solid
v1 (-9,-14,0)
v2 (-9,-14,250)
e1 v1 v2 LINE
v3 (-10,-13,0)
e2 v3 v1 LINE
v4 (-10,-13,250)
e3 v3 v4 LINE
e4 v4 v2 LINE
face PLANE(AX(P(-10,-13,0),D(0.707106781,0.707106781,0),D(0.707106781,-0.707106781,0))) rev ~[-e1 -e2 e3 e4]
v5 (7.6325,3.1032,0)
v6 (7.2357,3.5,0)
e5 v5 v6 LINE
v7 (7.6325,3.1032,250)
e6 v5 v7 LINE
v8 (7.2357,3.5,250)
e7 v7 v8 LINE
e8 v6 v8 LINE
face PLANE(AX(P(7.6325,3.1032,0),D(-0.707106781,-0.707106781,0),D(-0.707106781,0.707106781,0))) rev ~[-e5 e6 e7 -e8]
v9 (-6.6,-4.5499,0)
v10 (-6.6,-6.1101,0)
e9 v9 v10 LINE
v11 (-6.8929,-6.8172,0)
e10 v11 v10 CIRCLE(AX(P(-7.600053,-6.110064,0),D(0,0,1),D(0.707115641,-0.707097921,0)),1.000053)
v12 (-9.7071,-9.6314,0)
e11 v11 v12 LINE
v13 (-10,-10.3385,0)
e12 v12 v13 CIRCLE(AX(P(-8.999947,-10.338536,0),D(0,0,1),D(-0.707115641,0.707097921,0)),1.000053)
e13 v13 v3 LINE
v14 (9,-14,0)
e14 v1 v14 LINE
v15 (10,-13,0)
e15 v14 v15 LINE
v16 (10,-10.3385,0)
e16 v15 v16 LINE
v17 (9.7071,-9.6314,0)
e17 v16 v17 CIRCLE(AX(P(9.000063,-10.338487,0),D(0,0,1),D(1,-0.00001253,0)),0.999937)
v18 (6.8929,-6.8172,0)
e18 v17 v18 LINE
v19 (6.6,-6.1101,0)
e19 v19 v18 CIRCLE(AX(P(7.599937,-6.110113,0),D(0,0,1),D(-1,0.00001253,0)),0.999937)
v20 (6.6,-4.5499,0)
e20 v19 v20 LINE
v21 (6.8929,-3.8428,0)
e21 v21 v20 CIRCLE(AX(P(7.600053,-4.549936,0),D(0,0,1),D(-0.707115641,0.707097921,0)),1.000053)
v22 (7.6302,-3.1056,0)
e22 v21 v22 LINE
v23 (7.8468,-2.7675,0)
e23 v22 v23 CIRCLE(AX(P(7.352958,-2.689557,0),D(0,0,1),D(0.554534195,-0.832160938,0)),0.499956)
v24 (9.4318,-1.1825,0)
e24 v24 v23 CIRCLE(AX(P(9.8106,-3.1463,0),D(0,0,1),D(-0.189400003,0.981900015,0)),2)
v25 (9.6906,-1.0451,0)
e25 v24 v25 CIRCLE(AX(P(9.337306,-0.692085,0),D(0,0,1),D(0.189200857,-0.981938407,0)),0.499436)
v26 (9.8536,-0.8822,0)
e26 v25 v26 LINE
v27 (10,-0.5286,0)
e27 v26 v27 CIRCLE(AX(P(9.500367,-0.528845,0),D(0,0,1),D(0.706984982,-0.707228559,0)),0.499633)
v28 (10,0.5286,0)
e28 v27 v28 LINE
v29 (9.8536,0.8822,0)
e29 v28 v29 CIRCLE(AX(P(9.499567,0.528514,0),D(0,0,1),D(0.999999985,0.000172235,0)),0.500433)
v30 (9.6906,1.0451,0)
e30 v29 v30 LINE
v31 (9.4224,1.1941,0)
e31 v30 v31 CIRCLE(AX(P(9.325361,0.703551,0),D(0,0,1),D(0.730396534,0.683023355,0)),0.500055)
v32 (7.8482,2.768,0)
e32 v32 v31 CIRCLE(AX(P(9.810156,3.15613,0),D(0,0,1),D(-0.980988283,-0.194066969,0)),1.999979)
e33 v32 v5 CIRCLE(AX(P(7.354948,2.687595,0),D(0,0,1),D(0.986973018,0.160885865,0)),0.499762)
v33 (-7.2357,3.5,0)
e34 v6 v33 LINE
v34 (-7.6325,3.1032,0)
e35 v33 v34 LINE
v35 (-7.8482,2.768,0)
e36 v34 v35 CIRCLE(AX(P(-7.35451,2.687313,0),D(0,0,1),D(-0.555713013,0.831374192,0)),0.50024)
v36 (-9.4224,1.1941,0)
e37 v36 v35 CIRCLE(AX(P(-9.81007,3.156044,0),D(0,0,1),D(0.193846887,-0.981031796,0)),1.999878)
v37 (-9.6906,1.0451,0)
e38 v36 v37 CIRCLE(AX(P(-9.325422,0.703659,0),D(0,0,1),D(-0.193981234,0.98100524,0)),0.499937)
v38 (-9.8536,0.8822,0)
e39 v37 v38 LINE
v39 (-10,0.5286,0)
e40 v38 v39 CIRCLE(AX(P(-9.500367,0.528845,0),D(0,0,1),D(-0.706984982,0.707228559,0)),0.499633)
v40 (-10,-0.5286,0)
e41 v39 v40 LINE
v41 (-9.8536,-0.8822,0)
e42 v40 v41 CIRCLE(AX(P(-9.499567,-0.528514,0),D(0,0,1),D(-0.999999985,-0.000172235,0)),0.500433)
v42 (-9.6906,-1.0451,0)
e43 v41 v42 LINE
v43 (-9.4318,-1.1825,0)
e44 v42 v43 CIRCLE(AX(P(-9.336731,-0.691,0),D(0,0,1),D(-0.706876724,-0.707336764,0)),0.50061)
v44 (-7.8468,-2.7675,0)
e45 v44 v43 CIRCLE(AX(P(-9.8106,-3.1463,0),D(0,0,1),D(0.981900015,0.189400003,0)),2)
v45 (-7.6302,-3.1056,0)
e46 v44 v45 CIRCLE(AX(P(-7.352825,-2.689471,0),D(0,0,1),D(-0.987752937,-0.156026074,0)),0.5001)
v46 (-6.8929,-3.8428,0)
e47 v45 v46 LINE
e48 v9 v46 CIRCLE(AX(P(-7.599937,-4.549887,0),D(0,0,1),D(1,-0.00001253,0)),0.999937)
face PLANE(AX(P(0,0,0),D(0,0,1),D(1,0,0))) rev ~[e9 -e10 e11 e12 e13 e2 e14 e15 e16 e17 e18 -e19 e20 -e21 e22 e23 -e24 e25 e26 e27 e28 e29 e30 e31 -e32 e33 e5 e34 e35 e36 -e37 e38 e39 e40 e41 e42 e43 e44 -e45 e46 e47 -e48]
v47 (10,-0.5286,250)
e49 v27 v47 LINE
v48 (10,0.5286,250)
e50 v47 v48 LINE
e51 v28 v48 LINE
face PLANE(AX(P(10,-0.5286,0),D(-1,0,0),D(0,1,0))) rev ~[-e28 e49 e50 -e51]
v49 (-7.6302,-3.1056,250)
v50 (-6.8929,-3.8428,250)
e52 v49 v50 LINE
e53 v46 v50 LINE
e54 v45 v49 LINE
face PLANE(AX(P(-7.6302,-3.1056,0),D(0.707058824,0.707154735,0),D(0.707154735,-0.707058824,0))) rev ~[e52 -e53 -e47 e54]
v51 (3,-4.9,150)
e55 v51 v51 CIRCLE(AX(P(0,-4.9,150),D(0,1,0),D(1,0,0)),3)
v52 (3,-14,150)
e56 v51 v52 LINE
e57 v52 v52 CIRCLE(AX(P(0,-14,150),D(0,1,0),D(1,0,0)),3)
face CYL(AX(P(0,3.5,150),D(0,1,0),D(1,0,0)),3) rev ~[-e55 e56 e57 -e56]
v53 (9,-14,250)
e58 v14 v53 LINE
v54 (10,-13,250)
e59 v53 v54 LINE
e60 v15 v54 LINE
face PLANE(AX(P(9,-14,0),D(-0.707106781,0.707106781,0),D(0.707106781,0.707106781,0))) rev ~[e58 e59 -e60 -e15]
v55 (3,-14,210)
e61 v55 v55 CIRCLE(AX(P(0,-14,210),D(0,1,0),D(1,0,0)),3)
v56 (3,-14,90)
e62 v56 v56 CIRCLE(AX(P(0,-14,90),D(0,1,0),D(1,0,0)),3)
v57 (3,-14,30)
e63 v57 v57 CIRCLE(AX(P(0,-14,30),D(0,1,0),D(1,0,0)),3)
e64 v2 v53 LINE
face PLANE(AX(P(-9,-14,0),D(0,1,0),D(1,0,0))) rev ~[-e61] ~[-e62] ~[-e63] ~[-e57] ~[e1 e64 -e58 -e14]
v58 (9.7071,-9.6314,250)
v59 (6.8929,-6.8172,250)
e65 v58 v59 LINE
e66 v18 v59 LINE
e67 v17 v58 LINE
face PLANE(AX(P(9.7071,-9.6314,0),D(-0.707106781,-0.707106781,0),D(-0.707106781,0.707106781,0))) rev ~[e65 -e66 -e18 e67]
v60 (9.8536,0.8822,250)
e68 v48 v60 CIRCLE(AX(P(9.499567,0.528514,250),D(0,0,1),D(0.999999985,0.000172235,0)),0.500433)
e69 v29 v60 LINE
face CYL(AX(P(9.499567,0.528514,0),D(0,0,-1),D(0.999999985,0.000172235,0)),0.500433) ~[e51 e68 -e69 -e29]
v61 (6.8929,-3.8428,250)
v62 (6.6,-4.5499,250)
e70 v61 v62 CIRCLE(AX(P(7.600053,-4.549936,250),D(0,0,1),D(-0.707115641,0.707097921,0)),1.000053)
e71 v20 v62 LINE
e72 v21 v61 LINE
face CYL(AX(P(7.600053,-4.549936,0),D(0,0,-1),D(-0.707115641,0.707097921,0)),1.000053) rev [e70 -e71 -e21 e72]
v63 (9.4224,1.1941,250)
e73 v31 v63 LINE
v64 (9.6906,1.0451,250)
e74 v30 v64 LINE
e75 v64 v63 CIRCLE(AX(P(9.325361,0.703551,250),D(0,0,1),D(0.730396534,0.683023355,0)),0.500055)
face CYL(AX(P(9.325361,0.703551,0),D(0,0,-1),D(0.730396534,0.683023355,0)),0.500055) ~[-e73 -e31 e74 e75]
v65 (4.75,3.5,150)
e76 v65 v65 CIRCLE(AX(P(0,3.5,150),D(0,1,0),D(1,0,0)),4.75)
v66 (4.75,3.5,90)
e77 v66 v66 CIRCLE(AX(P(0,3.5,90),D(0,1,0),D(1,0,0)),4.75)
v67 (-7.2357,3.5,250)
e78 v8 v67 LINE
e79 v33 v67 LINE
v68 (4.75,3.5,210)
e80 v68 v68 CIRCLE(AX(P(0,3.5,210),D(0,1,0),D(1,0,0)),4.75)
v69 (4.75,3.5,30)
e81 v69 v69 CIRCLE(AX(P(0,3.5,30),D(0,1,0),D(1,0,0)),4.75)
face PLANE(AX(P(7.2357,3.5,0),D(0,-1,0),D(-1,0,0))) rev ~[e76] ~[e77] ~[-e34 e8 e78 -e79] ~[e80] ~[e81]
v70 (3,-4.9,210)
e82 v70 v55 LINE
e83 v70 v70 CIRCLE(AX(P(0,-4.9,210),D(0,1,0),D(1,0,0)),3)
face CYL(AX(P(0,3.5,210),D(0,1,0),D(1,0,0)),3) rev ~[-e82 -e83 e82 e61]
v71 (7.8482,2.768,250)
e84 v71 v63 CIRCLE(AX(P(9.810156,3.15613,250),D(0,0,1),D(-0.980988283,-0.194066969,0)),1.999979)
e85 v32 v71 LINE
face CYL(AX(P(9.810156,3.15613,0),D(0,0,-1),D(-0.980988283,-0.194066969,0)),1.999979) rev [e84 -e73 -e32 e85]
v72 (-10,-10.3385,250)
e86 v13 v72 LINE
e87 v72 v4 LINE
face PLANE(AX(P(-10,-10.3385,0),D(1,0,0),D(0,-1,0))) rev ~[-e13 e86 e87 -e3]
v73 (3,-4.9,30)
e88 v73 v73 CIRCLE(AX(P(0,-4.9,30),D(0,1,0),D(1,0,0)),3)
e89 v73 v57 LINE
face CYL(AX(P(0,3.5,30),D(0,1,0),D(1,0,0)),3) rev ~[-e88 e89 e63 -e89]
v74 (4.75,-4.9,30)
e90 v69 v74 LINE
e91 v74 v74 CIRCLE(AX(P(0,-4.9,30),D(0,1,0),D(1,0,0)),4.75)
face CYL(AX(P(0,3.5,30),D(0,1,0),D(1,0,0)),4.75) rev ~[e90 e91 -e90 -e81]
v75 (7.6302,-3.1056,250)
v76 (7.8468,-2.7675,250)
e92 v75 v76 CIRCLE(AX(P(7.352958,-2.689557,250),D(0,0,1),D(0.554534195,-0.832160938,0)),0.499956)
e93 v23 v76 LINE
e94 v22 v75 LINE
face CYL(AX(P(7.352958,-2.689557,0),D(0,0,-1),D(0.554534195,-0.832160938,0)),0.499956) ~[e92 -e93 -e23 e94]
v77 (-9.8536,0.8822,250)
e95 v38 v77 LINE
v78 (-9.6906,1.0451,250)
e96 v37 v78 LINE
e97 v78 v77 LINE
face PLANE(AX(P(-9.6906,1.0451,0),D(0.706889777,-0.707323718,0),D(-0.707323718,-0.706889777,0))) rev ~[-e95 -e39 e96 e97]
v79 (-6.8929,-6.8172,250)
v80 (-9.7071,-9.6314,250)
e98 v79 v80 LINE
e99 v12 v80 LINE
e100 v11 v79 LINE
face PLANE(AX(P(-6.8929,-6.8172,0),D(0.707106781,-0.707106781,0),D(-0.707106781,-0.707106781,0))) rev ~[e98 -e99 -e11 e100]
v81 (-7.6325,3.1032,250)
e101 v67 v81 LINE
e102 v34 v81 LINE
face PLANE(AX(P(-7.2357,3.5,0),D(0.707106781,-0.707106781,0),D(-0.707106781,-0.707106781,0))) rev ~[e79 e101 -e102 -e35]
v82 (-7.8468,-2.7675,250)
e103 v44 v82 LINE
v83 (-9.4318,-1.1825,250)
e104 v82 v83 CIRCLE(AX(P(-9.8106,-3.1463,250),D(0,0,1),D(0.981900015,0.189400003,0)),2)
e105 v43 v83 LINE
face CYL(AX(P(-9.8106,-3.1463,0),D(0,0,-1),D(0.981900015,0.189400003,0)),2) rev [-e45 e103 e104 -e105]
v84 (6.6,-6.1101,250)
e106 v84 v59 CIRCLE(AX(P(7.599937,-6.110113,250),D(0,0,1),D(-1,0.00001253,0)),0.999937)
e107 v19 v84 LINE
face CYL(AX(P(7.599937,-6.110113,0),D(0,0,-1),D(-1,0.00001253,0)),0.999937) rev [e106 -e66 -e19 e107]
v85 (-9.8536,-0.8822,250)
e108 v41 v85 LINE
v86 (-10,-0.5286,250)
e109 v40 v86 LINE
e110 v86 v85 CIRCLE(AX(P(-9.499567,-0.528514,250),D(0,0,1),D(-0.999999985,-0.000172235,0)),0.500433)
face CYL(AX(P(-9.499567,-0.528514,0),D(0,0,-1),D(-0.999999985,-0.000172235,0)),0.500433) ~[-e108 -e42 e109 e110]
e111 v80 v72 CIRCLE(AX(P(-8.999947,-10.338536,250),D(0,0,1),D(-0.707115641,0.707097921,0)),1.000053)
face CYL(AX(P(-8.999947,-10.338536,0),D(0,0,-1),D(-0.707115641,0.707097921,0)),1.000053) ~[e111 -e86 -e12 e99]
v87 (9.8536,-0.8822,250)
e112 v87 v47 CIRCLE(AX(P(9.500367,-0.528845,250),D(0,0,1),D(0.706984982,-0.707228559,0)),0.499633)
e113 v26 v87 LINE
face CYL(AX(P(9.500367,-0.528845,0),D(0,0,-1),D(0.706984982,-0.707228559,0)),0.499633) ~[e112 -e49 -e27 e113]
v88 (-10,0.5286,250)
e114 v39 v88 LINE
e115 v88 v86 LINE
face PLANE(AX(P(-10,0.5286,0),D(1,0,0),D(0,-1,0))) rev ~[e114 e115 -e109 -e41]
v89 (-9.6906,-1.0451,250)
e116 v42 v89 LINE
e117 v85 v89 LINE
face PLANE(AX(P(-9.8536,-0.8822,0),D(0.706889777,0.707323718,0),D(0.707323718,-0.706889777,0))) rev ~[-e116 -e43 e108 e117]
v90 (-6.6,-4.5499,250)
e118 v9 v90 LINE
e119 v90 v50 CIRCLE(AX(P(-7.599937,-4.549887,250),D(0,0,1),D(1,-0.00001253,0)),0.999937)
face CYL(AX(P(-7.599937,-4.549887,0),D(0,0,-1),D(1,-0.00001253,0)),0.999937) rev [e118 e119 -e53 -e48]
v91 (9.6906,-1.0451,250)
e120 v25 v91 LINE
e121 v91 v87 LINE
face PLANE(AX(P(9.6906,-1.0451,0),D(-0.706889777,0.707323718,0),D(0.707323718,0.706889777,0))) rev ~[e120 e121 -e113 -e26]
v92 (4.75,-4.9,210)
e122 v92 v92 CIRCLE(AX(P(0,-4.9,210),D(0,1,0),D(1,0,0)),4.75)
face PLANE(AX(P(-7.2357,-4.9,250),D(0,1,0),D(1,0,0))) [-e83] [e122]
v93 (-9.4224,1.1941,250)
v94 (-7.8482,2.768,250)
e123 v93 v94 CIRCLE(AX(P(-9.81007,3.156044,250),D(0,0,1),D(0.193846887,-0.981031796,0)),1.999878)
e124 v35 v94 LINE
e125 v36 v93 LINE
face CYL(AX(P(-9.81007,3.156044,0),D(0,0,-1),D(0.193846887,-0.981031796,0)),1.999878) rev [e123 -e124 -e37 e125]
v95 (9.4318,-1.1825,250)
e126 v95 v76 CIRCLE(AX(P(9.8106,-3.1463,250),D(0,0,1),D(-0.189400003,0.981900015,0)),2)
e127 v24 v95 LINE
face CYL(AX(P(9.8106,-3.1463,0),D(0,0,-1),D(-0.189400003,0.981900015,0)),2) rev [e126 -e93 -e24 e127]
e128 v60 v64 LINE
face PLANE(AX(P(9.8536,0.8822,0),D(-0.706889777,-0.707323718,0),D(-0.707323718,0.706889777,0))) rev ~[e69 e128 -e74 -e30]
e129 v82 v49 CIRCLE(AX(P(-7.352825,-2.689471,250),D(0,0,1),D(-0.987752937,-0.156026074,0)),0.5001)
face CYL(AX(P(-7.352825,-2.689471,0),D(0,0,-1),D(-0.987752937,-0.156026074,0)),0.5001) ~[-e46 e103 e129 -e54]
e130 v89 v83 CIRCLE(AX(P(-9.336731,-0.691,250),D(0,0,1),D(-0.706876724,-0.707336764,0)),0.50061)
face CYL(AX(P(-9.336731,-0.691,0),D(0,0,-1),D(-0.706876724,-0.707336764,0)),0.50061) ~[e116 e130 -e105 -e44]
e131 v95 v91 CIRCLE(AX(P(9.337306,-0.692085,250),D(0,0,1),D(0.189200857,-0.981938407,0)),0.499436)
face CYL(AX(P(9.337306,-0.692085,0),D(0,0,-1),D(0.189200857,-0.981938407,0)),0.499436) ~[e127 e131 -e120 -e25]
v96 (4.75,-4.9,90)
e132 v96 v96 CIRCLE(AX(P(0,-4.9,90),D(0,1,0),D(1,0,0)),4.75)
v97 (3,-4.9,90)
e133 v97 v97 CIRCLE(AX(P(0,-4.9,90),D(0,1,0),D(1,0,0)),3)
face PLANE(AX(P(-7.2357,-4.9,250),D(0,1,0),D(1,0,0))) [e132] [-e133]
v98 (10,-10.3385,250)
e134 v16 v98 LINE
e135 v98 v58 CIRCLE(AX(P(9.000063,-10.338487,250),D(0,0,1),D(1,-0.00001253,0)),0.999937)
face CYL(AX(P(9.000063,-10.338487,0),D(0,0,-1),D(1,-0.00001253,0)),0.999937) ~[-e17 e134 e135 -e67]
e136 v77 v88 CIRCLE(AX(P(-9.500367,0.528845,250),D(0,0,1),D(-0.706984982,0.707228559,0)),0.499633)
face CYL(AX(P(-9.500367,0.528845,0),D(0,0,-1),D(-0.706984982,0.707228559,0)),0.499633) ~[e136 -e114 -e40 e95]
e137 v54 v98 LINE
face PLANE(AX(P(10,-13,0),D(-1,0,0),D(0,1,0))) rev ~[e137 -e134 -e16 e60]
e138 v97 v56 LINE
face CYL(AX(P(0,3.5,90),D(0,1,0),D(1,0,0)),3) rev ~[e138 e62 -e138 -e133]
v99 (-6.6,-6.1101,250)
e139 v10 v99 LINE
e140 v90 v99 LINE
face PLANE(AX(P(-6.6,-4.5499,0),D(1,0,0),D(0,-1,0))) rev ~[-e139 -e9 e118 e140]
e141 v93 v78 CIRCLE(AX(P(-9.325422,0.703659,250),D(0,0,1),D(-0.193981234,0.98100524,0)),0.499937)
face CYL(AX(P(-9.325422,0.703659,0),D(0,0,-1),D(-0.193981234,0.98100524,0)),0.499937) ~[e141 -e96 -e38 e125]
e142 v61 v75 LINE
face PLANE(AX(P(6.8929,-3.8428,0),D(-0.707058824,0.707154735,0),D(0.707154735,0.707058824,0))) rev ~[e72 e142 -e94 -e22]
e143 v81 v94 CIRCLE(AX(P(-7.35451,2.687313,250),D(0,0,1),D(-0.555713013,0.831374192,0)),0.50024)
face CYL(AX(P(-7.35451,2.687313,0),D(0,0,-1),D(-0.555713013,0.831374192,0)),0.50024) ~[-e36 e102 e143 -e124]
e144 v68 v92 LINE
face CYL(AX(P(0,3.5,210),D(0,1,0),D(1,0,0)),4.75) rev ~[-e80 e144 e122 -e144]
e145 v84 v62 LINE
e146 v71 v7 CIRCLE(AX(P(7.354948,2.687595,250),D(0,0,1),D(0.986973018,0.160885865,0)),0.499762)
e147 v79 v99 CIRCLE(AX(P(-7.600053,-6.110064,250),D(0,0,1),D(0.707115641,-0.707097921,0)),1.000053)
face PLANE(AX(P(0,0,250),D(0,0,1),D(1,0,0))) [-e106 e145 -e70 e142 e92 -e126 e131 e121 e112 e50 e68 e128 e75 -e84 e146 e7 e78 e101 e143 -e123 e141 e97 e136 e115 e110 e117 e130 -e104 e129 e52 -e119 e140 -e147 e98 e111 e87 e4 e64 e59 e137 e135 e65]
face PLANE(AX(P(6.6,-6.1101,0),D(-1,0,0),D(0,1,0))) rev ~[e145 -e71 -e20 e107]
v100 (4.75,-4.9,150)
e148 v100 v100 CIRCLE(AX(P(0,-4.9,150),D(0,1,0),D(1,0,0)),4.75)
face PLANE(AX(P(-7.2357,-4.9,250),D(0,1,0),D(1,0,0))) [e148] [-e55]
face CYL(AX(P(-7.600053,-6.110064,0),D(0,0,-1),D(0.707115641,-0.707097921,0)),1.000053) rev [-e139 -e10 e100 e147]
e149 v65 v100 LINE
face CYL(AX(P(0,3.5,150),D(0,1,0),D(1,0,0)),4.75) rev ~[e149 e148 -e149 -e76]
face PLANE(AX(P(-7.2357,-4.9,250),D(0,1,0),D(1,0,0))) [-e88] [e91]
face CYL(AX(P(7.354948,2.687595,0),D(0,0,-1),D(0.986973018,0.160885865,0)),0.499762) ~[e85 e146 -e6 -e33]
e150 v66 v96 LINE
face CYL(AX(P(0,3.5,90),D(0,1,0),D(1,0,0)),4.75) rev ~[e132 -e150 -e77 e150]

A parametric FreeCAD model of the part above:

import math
import FreeCAD as App
import Part
import Sketcher
Q = App.Units.Quantity

doc = App.newDocument("Part")
body = doc.addObject("PartDesign::Body", "Body")

# Sketch on XY plane
sketch1 = doc.addObject("Sketcher::SketchObject", "Sketch")
body.addObject(sketch1)
sketch1.AttachmentSupport = (doc.XY_Plane, [""])
sketch1.MapMode = "FlatFace"
sketch1.addGeometry(Part.LineSegment(App.Vector(-6.89, -6.82, 0), App.Vector(-9.71, -9.63, 0)), False)
sketch1.addGeometry(Part.ArcOfCircle(Part.Circle(App.Vector(-9, -10.34, 0), App.Vector(0, 0, 1), 1), math.radians(135), math.radians(180)), False)
sketch1.addGeometry(Part.LineSegment(App.Vector(-10, -10.34, 0), App.Vector(-10, -13, 0)), False)
sketch1.addGeometry(Part.LineSegment(App.Vector(-10, -13, 0), App.Vector(-9, -14, 0)), False)
sketch1.addGeometry(Part.LineSegment(App.Vector(-9, -14, 0), App.Vector(9, -14, 0)), False)
sketch1.addGeometry(Part.LineSegment(App.Vector(9, -14, 0), App.Vector(10, -13, 0)), False)
sketch1.addGeometry(Part.LineSegment(App.Vector(10, -13, 0), App.Vector(10, -10.34, 0)), False)
sketch1.addGeometry(Part.ArcOfCircle(Part.Circle(App.Vector(9, -10.34, 0), App.Vector(0, 0, 1), 1), math.radians(0), math.radians(45)), False)
sketch1.addGeometry(Part.LineSegment(App.Vector(9.71, -9.63, 0), App.Vector(6.89, -6.82, 0)), False)
sketch1.addGeometry(Part.ArcOfCircle(Part.Circle(App.Vector(7.6, -6.11, 0), App.Vector(0, 0, 1), 1), math.radians(180), math.radians(225)), False)
sketch1.addGeometry(Part.LineSegment(App.Vector(6.6, -6.11, 0), App.Vector(6.6, -4.55, 0)), False)
sketch1.addGeometry(Part.ArcOfCircle(Part.Circle(App.Vector(7.6, -4.55, 0), App.Vector(0, 0, 1), 1), math.radians(135), math.radians(180)), False)
sketch1.addGeometry(Part.LineSegment(App.Vector(6.89, -3.84, 0), App.Vector(7.63, -3.11, 0)), False)
sketch1.addGeometry(Part.ArcOfCircle(Part.Circle(App.Vector(7.35, -2.69, 0), App.Vector(0, 0, 1), 0.5), math.radians(-56), math.radians(-9)), False)
sketch1.addGeometry(Part.ArcOfCircle(Part.Circle(App.Vector(9.81, -3.15, 0), App.Vector(0, 0, 1), 2), math.radians(101), math.radians(169)), False)
sketch1.addGeometry(Part.ArcOfCircle(Part.Circle(App.Vector(9.34, -0.69, 0), App.Vector(0, 0, 1), 0.5), math.radians(-79), math.radians(-45)), False)
sketch1.addGeometry(Part.LineSegment(App.Vector(9.69, -1.05, 0), App.Vector(9.85, -0.88, 0)), False)
sketch1.addGeometry(Part.ArcOfCircle(Part.Circle(App.Vector(9.5, -0.53, 0), App.Vector(0, 0, 1), 0.5), math.radians(-45), math.radians(0)), False)
sketch1.addGeometry(Part.LineSegment(App.Vector(10, -0.53, 0), App.Vector(10, 0.53, 0)), False)
sketch1.addGeometry(Part.ArcOfCircle(Part.Circle(App.Vector(9.5, 0.53, 0), App.Vector(0, 0, 1), 0.5), math.radians(0), math.radians(45)), False)
sketch1.addGeometry(Part.LineSegment(App.Vector(9.85, 0.88, 0), App.Vector(9.69, 1.05, 0)), False)
sketch1.addGeometry(Part.ArcOfCircle(Part.Circle(App.Vector(9.33, 0.7, 0), App.Vector(0, 0, 1), 0.5), math.radians(43), math.radians(79)), False)
sketch1.addGeometry(Part.ArcOfCircle(Part.Circle(App.Vector(9.81, 3.16, 0), App.Vector(0, 0, 1), 2), math.radians(-169), math.radians(-101)), False)
sketch1.addGeometry(Part.ArcOfCircle(Part.Circle(App.Vector(7.35, 2.69, 0), App.Vector(0, 0, 1), 0.5), math.radians(9), math.radians(56)), False)
sketch1.addGeometry(Part.LineSegment(App.Vector(7.63, 3.1, 0), App.Vector(7.24, 3.5, 0)), False)
sketch1.addGeometry(Part.LineSegment(App.Vector(7.24, 3.5, 0), App.Vector(-7.24, 3.5, 0)), False)
sketch1.addGeometry(Part.LineSegment(App.Vector(-7.24, 3.5, 0), App.Vector(-7.63, 3.1, 0)), False)
sketch1.addGeometry(Part.ArcOfCircle(Part.Circle(App.Vector(-7.35, 2.69, 0), App.Vector(0, 0, 1), 0.5), math.radians(124), math.radians(171)), False)
sketch1.addGeometry(Part.ArcOfCircle(Part.Circle(App.Vector(-9.81, 3.16, 0), App.Vector(0, 0, 1), 2), math.radians(-79), math.radians(-11)), False)
sketch1.addGeometry(Part.ArcOfCircle(Part.Circle(App.Vector(-9.33, 0.7, 0), App.Vector(0, 0, 1), 0.5), math.radians(101), math.radians(137)), False)
sketch1.addGeometry(Part.LineSegment(App.Vector(-9.69, 1.05, 0), App.Vector(-9.85, 0.88, 0)), False)
sketch1.addGeometry(Part.ArcOfCircle(Part.Circle(App.Vector(-9.5, 0.53, 0), App.Vector(0, 0, 1), 0.5), math.radians(135), math.radians(180)), False)
sketch1.addGeometry(Part.LineSegment(App.Vector(-10, 0.53, 0), App.Vector(-10, -0.53, 0)), False)
sketch1.addGeometry(Part.ArcOfCircle(Part.Circle(App.Vector(-9.5, -0.53, 0), App.Vector(0, 0, 1), 0.5), math.radians(180), math.radians(225)), False)
sketch1.addGeometry(Part.LineSegment(App.Vector(-9.85, -0.88, 0), App.Vector(-9.69, -1.05, 0)), False)
sketch1.addGeometry(Part.ArcOfCircle(Part.Circle(App.Vector(-9.34, -0.69, 0), App.Vector(0, 0, 1), 0.5), math.radians(-135), math.radians(-101)), False)
sketch1.addGeometry(Part.ArcOfCircle(Part.Circle(App.Vector(-9.81, -3.15, 0), App.Vector(0, 0, 1), 2), math.radians(11), math.radians(79)), False)
sketch1.addGeometry(Part.ArcOfCircle(Part.Circle(App.Vector(-7.35, -2.69, 0), App.Vector(0, 0, 1), 0.5), math.radians(-171), math.radians(-124)), False)
sketch1.addGeometry(Part.LineSegment(App.Vector(-7.63, -3.11, 0), App.Vector(-6.89, -3.84, 0)), False)
sketch1.addGeometry(Part.ArcOfCircle(Part.Circle(App.Vector(-7.6, -4.55, 0), App.Vector(0, 0, 1), 1), math.radians(0), math.radians(45)), False)
sketch1.addGeometry(Part.LineSegment(App.Vector(-6.6, -4.55, 0), App.Vector(-6.6, -6.11, 0)), False)
sketch1.addGeometry(Part.ArcOfCircle(Part.Circle(App.Vector(-7.6, -6.11, 0), App.Vector(0, 0, 1), 1), math.radians(-45), math.radians(0)), False)
sketch1.addConstraint(Sketcher.Constraint("Tangent", 0, 2, 1, 1))
sketch1.addConstraint(Sketcher.Constraint("Tangent", 1, 2, 2, 1))
sketch1.addConstraint(Sketcher.Constraint("Coincident", 2, 2, 3, 1))
sketch1.addConstraint(Sketcher.Constraint("Coincident", 3, 2, 4, 1))
sketch1.addConstraint(Sketcher.Constraint("Coincident", 4, 2, 5, 1))
sketch1.addConstraint(Sketcher.Constraint("Coincident", 5, 2, 6, 1))
sketch1.addConstraint(Sketcher.Constraint("Tangent", 6, 2, 7, 1))
sketch1.addConstraint(Sketcher.Constraint("Tangent", 7, 2, 8, 1))
sketch1.addConstraint(Sketcher.Constraint("Tangent", 8, 2, 9, 2))
sketch1.addConstraint(Sketcher.Constraint("Tangent", 9, 1, 10, 1))
sketch1.addConstraint(Sketcher.Constraint("Tangent", 10, 2, 11, 2))
sketch1.addConstraint(Sketcher.Constraint("Tangent", 11, 1, 12, 1))
sketch1.addConstraint(Sketcher.Constraint("Coincident", 12, 2, 13, 1))
sketch1.addConstraint(Sketcher.Constraint("Coincident", 13, 2, 14, 2))
sketch1.addConstraint(Sketcher.Constraint("Tangent", 14, 1, 15, 1))
sketch1.addConstraint(Sketcher.Constraint("Tangent", 15, 2, 16, 1))
sketch1.addConstraint(Sketcher.Constraint("Tangent", 16, 2, 17, 1))
sketch1.addConstraint(Sketcher.Constraint("Tangent", 17, 2, 18, 1))
sketch1.addConstraint(Sketcher.Constraint("Tangent", 18, 2, 19, 1))
sketch1.addConstraint(Sketcher.Constraint("Tangent", 19, 2, 20, 1))
sketch1.addConstraint(Sketcher.Constraint("Coincident", 20, 2, 21, 1))
sketch1.addConstraint(Sketcher.Constraint("Tangent", 21, 2, 22, 2))
sketch1.addConstraint(Sketcher.Constraint("Coincident", 22, 1, 23, 1))
sketch1.addConstraint(Sketcher.Constraint("Coincident", 23, 2, 24, 1))
sketch1.addConstraint(Sketcher.Constraint("Coincident", 24, 2, 25, 1))
sketch1.addConstraint(Sketcher.Constraint("Coincident", 25, 2, 26, 1))
sketch1.addConstraint(Sketcher.Constraint("Coincident", 26, 2, 27, 1))
sketch1.addConstraint(Sketcher.Constraint("Coincident", 27, 2, 28, 2))
sketch1.addConstraint(Sketcher.Constraint("Tangent", 28, 1, 29, 1))
sketch1.addConstraint(Sketcher.Constraint("Coincident", 29, 2, 30, 1))
sketch1.addConstraint(Sketcher.Constraint("Tangent", 30, 2, 31, 1))
sketch1.addConstraint(Sketcher.Constraint("Tangent", 31, 2, 32, 1))
sketch1.addConstraint(Sketcher.Constraint("Tangent", 32, 2, 33, 1))
sketch1.addConstraint(Sketcher.Constraint("Tangent", 33, 2, 34, 1))
sketch1.addConstraint(Sketcher.Constraint("Tangent", 34, 2, 35, 1))
sketch1.addConstraint(Sketcher.Constraint("Tangent", 35, 2, 36, 2))
sketch1.addConstraint(Sketcher.Constraint("Coincident", 36, 1, 37, 1))
sketch1.addConstraint(Sketcher.Constraint("Coincident", 37, 2, 38, 1))
sketch1.addConstraint(Sketcher.Constraint("Tangent", 38, 2, 39, 2))
sketch1.addConstraint(Sketcher.Constraint("Tangent", 39, 1, 40, 1))
sketch1.addConstraint(Sketcher.Constraint("Tangent", 40, 2, 41, 2))
sketch1.addConstraint(Sketcher.Constraint("Tangent", 41, 1, 0, 1))
sketch1.addConstraint(Sketcher.Constraint("Vertical", 2))
sketch1.addConstraint(Sketcher.Constraint("Horizontal", 4))
sketch1.addConstraint(Sketcher.Constraint("Vertical", 6))
sketch1.addConstraint(Sketcher.Constraint("Vertical", 10))
sketch1.addConstraint(Sketcher.Constraint("Vertical", 18))
sketch1.addConstraint(Sketcher.Constraint("Horizontal", 25))
sketch1.addConstraint(Sketcher.Constraint("Vertical", 32))
sketch1.addConstraint(Sketcher.Constraint("Vertical", 40))
sketch1.addConstraint(Sketcher.Constraint("Equal", 1, 7))
sketch1.addConstraint(Sketcher.Constraint("Equal", 7, 9))
sketch1.addConstraint(Sketcher.Constraint("Equal", 9, 11))
sketch1.addConstraint(Sketcher.Constraint("Equal", 13, 15))
sketch1.addConstraint(Sketcher.Constraint("Equal", 15, 17))
sketch1.addConstraint(Sketcher.Constraint("Equal", 17, 19))
sketch1.addConstraint(Sketcher.Constraint("Equal", 19, 21))
sketch1.addConstraint(Sketcher.Constraint("Equal", 14, 22))
sketch1.addConstraint(Sketcher.Constraint("Equal", 21, 23))
sketch1.addConstraint(Sketcher.Constraint("Equal", 23, 27))
sketch1.addConstraint(Sketcher.Constraint("Equal", 22, 28))
sketch1.addConstraint(Sketcher.Constraint("Equal", 27, 29))
sketch1.addConstraint(Sketcher.Constraint("Equal", 29, 31))
sketch1.addConstraint(Sketcher.Constraint("Equal", 31, 33))
sketch1.addConstraint(Sketcher.Constraint("Equal", 33, 35))
sketch1.addConstraint(Sketcher.Constraint("Equal", 28, 36))
sketch1.addConstraint(Sketcher.Constraint("Equal", 35, 37))
sketch1.addConstraint(Sketcher.Constraint("Equal", 11, 39))
sketch1.addConstraint(Sketcher.Constraint("Equal", 39, 41))
sketch1.addConstraint(Sketcher.Constraint("Symmetric", 17, 3, 31, 3, -1, 1))
sketch1.addConstraint(Sketcher.Constraint("Symmetric", 15, 2, 29, 2, -1, 1))
sketch1.addConstraint(Sketcher.Constraint("Symmetric", 19, 2, 33, 2, -1, 1))
sketch1.addConstraint(Sketcher.Constraint("Symmetric", 1, 3, 7, 3, -2))
sketch1.addConstraint(Sketcher.Constraint("Symmetric", 23, 3, 27, 3, -2))
sketch1.addConstraint(Sketcher.Constraint("Symmetric", 22, 3, 28, 3, -2))
sketch1.addConstraint(Sketcher.Constraint("Symmetric", 15, 3, 35, 3, -2))
sketch1.addConstraint(Sketcher.Constraint("Symmetric", 13, 3, 37, 3, -2))
sketch1.addConstraint(Sketcher.Constraint("Symmetric", 11, 3, 39, 3, -2))
sketch1.addConstraint(Sketcher.Constraint("Perpendicular", 0, 3))
sketch1.addConstraint(Sketcher.Constraint("Perpendicular", 3, 5))
sketch1.addConstraint(Sketcher.Constraint("Perpendicular", 5, 8))
sketch1.addConstraint(Sketcher.Constraint("Perpendicular", 8, 12))
sketch1.addConstraint(Sketcher.Constraint("Parallel", 12, 16))
sketch1.addConstraint(Sketcher.Constraint("Perpendicular", 12, 20))
sketch1.addConstraint(Sketcher.Constraint("Parallel", 20, 24))
sketch1.addConstraint(Sketcher.Constraint("Perpendicular", 24, 26))
sketch1.addConstraint(Sketcher.Constraint("Parallel", 34, 38))
sketch1.addConstraint(Sketcher.Constraint("Horizontal", 21, 3, 29, 3))
sketch1.addConstraint(Sketcher.Constraint("Horizontal", 19, 3, 31, 3))
sketch1.addConstraint(Sketcher.Constraint("Horizontal", 14, 3, 36, 3))
sketch1.addConstraint(Sketcher.Constraint("Horizontal", 2, 2, 5, 2))
sketch1.addConstraint(Sketcher.Constraint("Horizontal", 23, 2, 26, 2))
sketch1.addConstraint(Sketcher.Constraint("Vertical", 1, 3, 3, 2))
sketch1.addConstraint(Sketcher.Constraint("Vertical", 6, 2, 17, 2))
sketch1.addConstraint(Sketcher.Constraint("DistanceX", 4, 1, 4, 2, Q("18 mm")))
sketch1.addConstraint(Sketcher.Constraint("Radius", 1, Q("1 mm")))
sketch1.addConstraint(Sketcher.Constraint("Radius", 14, Q("2 mm")))
sketch1.addConstraint(Sketcher.Constraint("Radius", 13, Q("0.5 mm")))
sketch1.addConstraint(Sketcher.Constraint("DistanceX", 25, 2, 25, 1, Q("14.4714 mm")))
sketch1.addConstraint(Sketcher.Constraint("DistanceY", 2, 2, -1, 1, Q("13 mm")))
sketch1.addConstraint(Sketcher.Constraint("DistanceX", -1, 1, 9, 3, Q("7.6 mm")))
sketch1.addConstraint(Sketcher.Constraint("DistanceY", -1, 1, 24, 2, Q("3.5 mm")))
sketch1.addConstraint(Sketcher.Constraint("DistanceY", 9, 3, -1, 1, Q("6.11 mm")))
sketch1.addConstraint(Sketcher.Constraint("DistanceY", 11, 3, -1, 1, Q("4.55 mm")))
sketch1.addConstraint(Sketcher.Constraint("DistanceX", -1, 1, 22, 3, Q("9.81 mm")))
sketch1.addConstraint(Sketcher.Constraint("DistanceY", 18, 1, 18, 2, Q("1.0572 mm")))
sketch1.addConstraint(Sketcher.Constraint("DistanceX", -1, 1, 13, 3, Q("7.353 mm")))
sketch1.addConstraint(Sketcher.Constraint("DistanceX", -1, 1, 15, 3, Q("9.337 mm")))
sketch1.addConstraint(Sketcher.Constraint("DistanceY", -1, 1, 22, 3, Q("3.156 mm")))
sketch1.addConstraint(Sketcher.Constraint("DistanceY", -1, 1, 22, 1, Q("2.768 mm")))
sketch1.addConstraint(Sketcher.Constraint("Distance", 12, Q("1.0426 mm")))
sketch1.addConstraint(Sketcher.Constraint("Distance", 24, Q("0.5612 mm")))
sketch1.addConstraint(Sketcher.Constraint("DistanceX", -1, 1, 14, 3, Q("9.8106 mm")))
pad1 = doc.addObject("PartDesign::Pad", "Pad")
body.addObject(pad1)
pad1.Profile = sketch1
pad1.Length = 250

# Sketch on XZ plane
sketch2 = doc.addObject("Sketcher::SketchObject", "Sketch001")
body.addObject(sketch2)
sketch2.AttachmentSupport = (doc.XZ_Plane, [""])
sketch2.MapMode = "FlatFace"
sketch2.AttachmentOffset = App.Placement(App.Vector(0, 0, -3.5), App.Rotation())
sketch2.addGeometry(Part.Circle(App.Vector(0, -1230, 0), App.Vector(0, 0, 1), 3), False)
sketch2.addGeometry(Part.Circle(App.Vector(0, -1170, 0), App.Vector(0, 0, 1), 3), False)
sketch2.addGeometry(Part.Circle(App.Vector(0, -1110, 0), App.Vector(0, 0, 1), 3), False)
sketch2.addGeometry(Part.Circle(App.Vector(0, -1050, 0), App.Vector(0, 0, 1), 3), False)
sketch2.addGeometry(Part.Circle(App.Vector(0, -990, 0), App.Vector(0, 0, 1), 3), False)
sketch2.addGeometry(Part.Circle(App.Vector(0, -930, 0), App.Vector(0, 0, 1), 3), False)
sketch2.addGeometry(Part.Circle(App.Vector(0, -870, 0), App.Vector(0, 0, 1), 3), False)
sketch2.addGeometry(Part.Circle(App.Vector(0, -810, 0), App.Vector(0, 0, 1), 3), False)
sketch2.addGeometry(Part.Circle(App.Vector(0, -750, 0), App.Vector(0, 0, 1), 3), False)
sketch2.addGeometry(Part.Circle(App.Vector(0, -690, 0), App.Vector(0, 0, 1), 3), False)
sketch2.addGeometry(Part.Circle(App.Vector(0, -630, 0), App.Vector(0, 0, 1), 3), False)
sketch2.addGeometry(Part.Circle(App.Vector(0, -570, 0), App.Vector(0, 0, 1), 3), False)
sketch2.addGeometry(Part.Circle(App.Vector(0, -510, 0), App.Vector(0, 0, 1), 3), False)
sketch2.addGeometry(Part.Circle(App.Vector(0, -450, 0), App.Vector(0, 0, 1), 3), False)
sketch2.addGeometry(Part.Circle(App.Vector(0, -390, 0), App.Vector(0, 0, 1), 3), False)
sketch2.addGeometry(Part.Circle(App.Vector(0, -330, 0), App.Vector(0, 0, 1), 3), False)
sketch2.addGeometry(Part.Circle(App.Vector(0, -210, 0), App.Vector(0, 0, 1), 3), False)
sketch2.addGeometry(Part.Circle(App.Vector(0, -150, 0), App.Vector(0, 0, 1), 3), False)
sketch2.addGeometry(Part.Circle(App.Vector(0, -90, 0), App.Vector(0, 0, 1), 3), False)
sketch2.addGeometry(Part.Circle(App.Vector(0, -30, 0), App.Vector(0, 0, 1), 3), False)
sketch2.addGeometry(Part.Circle(App.Vector(0, 30, 0), App.Vector(0, 0, 1), 3), False)
sketch2.addGeometry(Part.Circle(App.Vector(0, 90, 0), App.Vector(0, 0, 1), 3), False)
sketch2.addGeometry(Part.Circle(App.Vector(0, 150, 0), App.Vector(0, 0, 1), 3), False)
sketch2.addGeometry(Part.Circle(App.Vector(0, 210, 0), App.Vector(0, 0, 1), 3), False)
sketch2.addConstraint(Sketcher.Constraint("Equal", 0, 1))
sketch2.addConstraint(Sketcher.Constraint("Equal", 1, 2))
sketch2.addConstraint(Sketcher.Constraint("Equal", 2, 3))
sketch2.addConstraint(Sketcher.Constraint("Equal", 3, 4))
sketch2.addConstraint(Sketcher.Constraint("Equal", 4, 5))
sketch2.addConstraint(Sketcher.Constraint("Equal", 5, 6))
sketch2.addConstraint(Sketcher.Constraint("Equal", 6, 7))
sketch2.addConstraint(Sketcher.Constraint("Equal", 7, 8))
sketch2.addConstraint(Sketcher.Constraint("Equal", 8, 9))
sketch2.addConstraint(Sketcher.Constraint("Equal", 9, 10))
sketch2.addConstraint(Sketcher.Constraint("Equal", 10, 11))
sketch2.addConstraint(Sketcher.Constraint("Equal", 11, 12))
sketch2.addConstraint(Sketcher.Constraint("Equal", 12, 13))
sketch2.addConstraint(Sketcher.Constraint("Equal", 13, 14))
sketch2.addConstraint(Sketcher.Constraint("Equal", 14, 15))
sketch2.addConstraint(Sketcher.Constraint("Equal", 15, 16))
sketch2.addConstraint(Sketcher.Constraint("Equal", 16, 17))
sketch2.addConstraint(Sketcher.Constraint("Equal", 17, 18))
sketch2.addConstraint(Sketcher.Constraint("Equal", 18, 19))
sketch2.addConstraint(Sketcher.Constraint("Equal", 19, 20))
sketch2.addConstraint(Sketcher.Constraint("Equal", 20, 21))
sketch2.addConstraint(Sketcher.Constraint("Equal", 21, 22))
sketch2.addConstraint(Sketcher.Constraint("Equal", 22, 23))
sketch2.addConstraint(Sketcher.Constraint("Symmetric", 19, 3, 20, 3, -1, 1))
sketch2.addConstraint(Sketcher.Constraint("Symmetric", 18, 3, 21, 3, -1, 1))
sketch2.addConstraint(Sketcher.Constraint("Symmetric", 17, 3, 22, 3, -1, 1))
sketch2.addConstraint(Sketcher.Constraint("Symmetric", 16, 3, 23, 3, -1, 1))
sketch2.addConstraint(Sketcher.Constraint("PointOnObject", 0, 3, -2))
sketch2.addConstraint(Sketcher.Constraint("PointOnObject", 1, 3, -2))
sketch2.addConstraint(Sketcher.Constraint("PointOnObject", 2, 3, -2))
sketch2.addConstraint(Sketcher.Constraint("PointOnObject", 3, 3, -2))
sketch2.addConstraint(Sketcher.Constraint("PointOnObject", 4, 3, -2))
sketch2.addConstraint(Sketcher.Constraint("PointOnObject", 5, 3, -2))
sketch2.addConstraint(Sketcher.Constraint("PointOnObject", 6, 3, -2))
sketch2.addConstraint(Sketcher.Constraint("PointOnObject", 7, 3, -2))
sketch2.addConstraint(Sketcher.Constraint("PointOnObject", 8, 3, -2))
sketch2.addConstraint(Sketcher.Constraint("PointOnObject", 9, 3, -2))
sketch2.addConstraint(Sketcher.Constraint("PointOnObject", 10, 3, -2))
sketch2.addConstraint(Sketcher.Constraint("PointOnObject", 11, 3, -2))
sketch2.addConstraint(Sketcher.Constraint("PointOnObject", 12, 3, -2))
sketch2.addConstraint(Sketcher.Constraint("PointOnObject", 13, 3, -2))
sketch2.addConstraint(Sketcher.Constraint("PointOnObject", 14, 3, -2))
sketch2.addConstraint(Sketcher.Constraint("PointOnObject", 15, 3, -2))
sketch2.addConstraint(Sketcher.Constraint("PointOnObject", 16, 3, -2))
sketch2.addConstraint(Sketcher.Constraint("PointOnObject", 17, 3, -2))
sketch2.addConstraint(Sketcher.Constraint("PointOnObject", 18, 3, -2))
sketch2.addConstraint(Sketcher.Constraint("PointOnObject", 19, 3, -2))
sketch2.addConstraint(Sketcher.Constraint("Diameter", 0, Q("6 mm")))
sketch2.addConstraint(Sketcher.Constraint("DistanceY", 0, 3, -1, 1, Q("1230 mm")))
sketch2.addConstraint(Sketcher.Constraint("DistanceY", 1, 3, -1, 1, Q("1170 mm")))
sketch2.addConstraint(Sketcher.Constraint("DistanceY", 2, 3, -1, 1, Q("1110 mm")))
sketch2.addConstraint(Sketcher.Constraint("DistanceY", 3, 3, -1, 1, Q("1050 mm")))
sketch2.addConstraint(Sketcher.Constraint("DistanceY", 4, 3, -1, 1, Q("990 mm")))
sketch2.addConstraint(Sketcher.Constraint("DistanceY", 5, 3, -1, 1, Q("930 mm")))
sketch2.addConstraint(Sketcher.Constraint("DistanceY", 6, 3, -1, 1, Q("870 mm")))
sketch2.addConstraint(Sketcher.Constraint("DistanceY", 7, 3, -1, 1, Q("810 mm")))
sketch2.addConstraint(Sketcher.Constraint("DistanceY", 8, 3, -1, 1, Q("750 mm")))
sketch2.addConstraint(Sketcher.Constraint("DistanceY", 9, 3, -1, 1, Q("690 mm")))
sketch2.addConstraint(Sketcher.Constraint("DistanceY", 10, 3, -1, 1, Q("630 mm")))
sketch2.addConstraint(Sketcher.Constraint("DistanceY", 11, 3, -1, 1, Q("570 mm")))
sketch2.addConstraint(Sketcher.Constraint("DistanceY", 12, 3, -1, 1, Q("510 mm")))
sketch2.addConstraint(Sketcher.Constraint("DistanceY", 13, 3, -1, 1, Q("450 mm")))
sketch2.addConstraint(Sketcher.Constraint("DistanceY", 14, 3, -1, 1, Q("390 mm")))
sketch2.addConstraint(Sketcher.Constraint("DistanceY", 15, 3, -1, 1, Q("330 mm")))
sketch2.addConstraint(Sketcher.Constraint("DistanceY", 16, 3, -1, 1, Q("210 mm")))
sketch2.addConstraint(Sketcher.Constraint("DistanceY", 17, 3, -1, 1, Q("150 mm")))
sketch2.addConstraint(Sketcher.Constraint("DistanceY", 18, 3, -1, 1, Q("90 mm")))
sketch2.addConstraint(Sketcher.Constraint("DistanceY", 19, 3, -1, 1, Q("30 mm")))
pocket1 = doc.addObject("PartDesign::Pocket", "Pocket")
body.addObject(pocket1)
pocket1.Profile = sketch2
pocket1.Length = 30
pocket1.Reversed = True

# Sketch on XZ plane
sketch3 = doc.addObject("Sketcher::SketchObject", "Sketch002")
body.addObject(sketch3)
sketch3.AttachmentSupport = (doc.XZ_Plane, [""])
sketch3.MapMode = "FlatFace"
sketch3.AttachmentOffset = App.Placement(App.Vector(0, 0, -3.5), App.Rotation())
sketch3.addGeometry(Part.Circle(App.Vector(0, -1230, 0), App.Vector(0, 0, 1), 4.8), False)
sketch3.addGeometry(Part.Circle(App.Vector(0, -1230, 0), App.Vector(0, 0, 1), 3), False)
sketch3.addGeometry(Part.Circle(App.Vector(0, -1170, 0), App.Vector(0, 0, 1), 4.8), False)
sketch3.addGeometry(Part.Circle(App.Vector(0, -1170, 0), App.Vector(0, 0, 1), 3), False)
sketch3.addGeometry(Part.Circle(App.Vector(0, -1110, 0), App.Vector(0, 0, 1), 4.8), False)
sketch3.addGeometry(Part.Circle(App.Vector(0, -1110, 0), App.Vector(0, 0, 1), 3), False)
sketch3.addGeometry(Part.Circle(App.Vector(0, -1050, 0), App.Vector(0, 0, 1), 4.8), False)
sketch3.addGeometry(Part.Circle(App.Vector(0, -1050, 0), App.Vector(0, 0, 1), 3), False)
sketch3.addGeometry(Part.Circle(App.Vector(0, -990, 0), App.Vector(0, 0, 1), 4.8), False)
sketch3.addGeometry(Part.Circle(App.Vector(0, -990, 0), App.Vector(0, 0, 1), 3), False)
sketch3.addGeometry(Part.Circle(App.Vector(0, -930, 0), App.Vector(0, 0, 1), 4.8), False)
sketch3.addGeometry(Part.Circle(App.Vector(0, -870, 0), App.Vector(0, 0, 1), 4.8), False)
sketch3.addGeometry(Part.Circle(App.Vector(0, -870, 0), App.Vector(0, 0, 1), 3), False)
sketch3.addGeometry(Part.Circle(App.Vector(0, -810, 0), App.Vector(0, 0, 1), 4.8), False)
sketch3.addGeometry(Part.Circle(App.Vector(0, -810, 0), App.Vector(0, 0, 1), 3), False)
sketch3.addGeometry(Part.Circle(App.Vector(0, -750, 0), App.Vector(0, 0, 1), 4.8), False)
sketch3.addGeometry(Part.Circle(App.Vector(0, -750, 0), App.Vector(0, 0, 1), 3), False)
sketch3.addGeometry(Part.Circle(App.Vector(0, -690, 0), App.Vector(0, 0, 1), 4.8), False)
sketch3.addGeometry(Part.Circle(App.Vector(0, -690, 0), App.Vector(0, 0, 1), 3), False)
sketch3.addGeometry(Part.Circle(App.Vector(0, -630, 0), App.Vector(0, 0, 1), 4.8), False)
sketch3.addGeometry(Part.Circle(App.Vector(0, -630, 0), App.Vector(0, 0, 1), 3), False)
sketch3.addGeometry(Part.Circle(App.Vector(0, -510, 0), App.Vector(0, 0, 1), 4.8), False)
sketch3.addGeometry(Part.Circle(App.Vector(0, -510, 0), App.Vector(0, 0, 1), 3), False)
sketch3.addGeometry(Part.Circle(App.Vector(0, -450, 0), App.Vector(0, 0, 1), 4.8), False)
sketch3.addGeometry(Part.Circle(App.Vector(0, -450, 0), App.Vector(0, 0, 1), 3), False)
sketch3.addGeometry(Part.Circle(App.Vector(0, -390, 0), App.Vector(0, 0, 1), 4.8), False)
sketch3.addGeometry(Part.Circle(App.Vector(0, -390, 0), App.Vector(0, 0, 1), 3), False)
sketch3.addGeometry(Part.Circle(App.Vector(0, -330, 0), App.Vector(0, 0, 1), 4.8), False)
sketch3.addGeometry(Part.Circle(App.Vector(0, -330, 0), App.Vector(0, 0, 1), 3), False)
sketch3.addGeometry(Part.Circle(App.Vector(0, -270, 0), App.Vector(0, 0, 1), 4.8), False)
sketch3.addGeometry(Part.Circle(App.Vector(0, -270, 0), App.Vector(0, 0, 1), 3), False)
sketch3.addGeometry(Part.Circle(App.Vector(0, -210, 0), App.Vector(0, 0, 1), 4.8), False)
sketch3.addGeometry(Part.Circle(App.Vector(0, -210, 0), App.Vector(0, 0, 1), 3), False)
sketch3.addGeometry(Part.Circle(App.Vector(0, -150, 0), App.Vector(0, 0, 1), 4.8), False)
sketch3.addGeometry(Part.Circle(App.Vector(0, -150, 0), App.Vector(0, 0, 1), 3), False)
sketch3.addGeometry(Part.Circle(App.Vector(0, -90, 0), App.Vector(0, 0, 1), 4.8), False)
sketch3.addGeometry(Part.Circle(App.Vector(0, -90, 0), App.Vector(0, 0, 1), 3), False)
sketch3.addGeometry(Part.Circle(App.Vector(0, -30, 0), App.Vector(0, 0, 1), 4.8), False)
sketch3.addGeometry(Part.Circle(App.Vector(0, -30, 0), App.Vector(0, 0, 1), 3), False)
sketch3.addGeometry(Part.Circle(App.Vector(0, 30, 0), App.Vector(0, 0, 1), 4.8), False)
sketch3.addGeometry(Part.Circle(App.Vector(0, 30, 0), App.Vector(0, 0, 1), 3), False)
sketch3.addGeometry(Part.Circle(App.Vector(0, 90, 0), App.Vector(0, 0, 1), 4.8), False)
sketch3.addGeometry(Part.Circle(App.Vector(0, 90, 0), App.Vector(0, 0, 1), 3), False)
sketch3.addGeometry(Part.Circle(App.Vector(0, 150, 0), App.Vector(0, 0, 1), 4.8), False)
sketch3.addGeometry(Part.Circle(App.Vector(0, 150, 0), App.Vector(0, 0, 1), 3), False)
sketch3.addGeometry(Part.Circle(App.Vector(0, 210, 0), App.Vector(0, 0, 1), 4.8), False)
sketch3.addGeometry(Part.Circle(App.Vector(0, 210, 0), App.Vector(0, 0, 1), 3), False)
sketch3.addConstraint(Sketcher.Constraint("Coincident", 1, 3, 0, 3))
sketch3.addConstraint(Sketcher.Constraint("Coincident", 3, 3, 2, 3))
sketch3.addConstraint(Sketcher.Constraint("Coincident", 5, 3, 4, 3))
sketch3.addConstraint(Sketcher.Constraint("Coincident", 7, 3, 6, 3))
sketch3.addConstraint(Sketcher.Constraint("Coincident", 9, 3, 8, 3))
sketch3.addConstraint(Sketcher.Constraint("Coincident", 12, 3, 11, 3))
sketch3.addConstraint(Sketcher.Constraint("Coincident", 14, 3, 13, 3))
sketch3.addConstraint(Sketcher.Constraint("Coincident", 16, 3, 15, 3))
sketch3.addConstraint(Sketcher.Constraint("Coincident", 18, 3, 17, 3))
sketch3.addConstraint(Sketcher.Constraint("Coincident", 20, 3, 19, 3))
sketch3.addConstraint(Sketcher.Constraint("Coincident", 22, 3, 21, 3))
sketch3.addConstraint(Sketcher.Constraint("Coincident", 24, 3, 23, 3))
sketch3.addConstraint(Sketcher.Constraint("Coincident", 26, 3, 25, 3))
sketch3.addConstraint(Sketcher.Constraint("Coincident", 28, 3, 27, 3))
sketch3.addConstraint(Sketcher.Constraint("Coincident", 30, 3, 29, 3))
sketch3.addConstraint(Sketcher.Constraint("Coincident", 32, 3, 31, 3))
sketch3.addConstraint(Sketcher.Constraint("Coincident", 34, 3, 33, 3))
sketch3.addConstraint(Sketcher.Constraint("Coincident", 36, 3, 35, 3))
sketch3.addConstraint(Sketcher.Constraint("Coincident", 38, 3, 37, 3))
sketch3.addConstraint(Sketcher.Constraint("Coincident", 40, 3, 39, 3))
sketch3.addConstraint(Sketcher.Constraint("Coincident", 42, 3, 41, 3))
sketch3.addConstraint(Sketcher.Constraint("Coincident", 44, 3, 43, 3))
sketch3.addConstraint(Sketcher.Constraint("Coincident", 46, 3, 45, 3))
sketch3.addConstraint(Sketcher.Constraint("Equal", 0, 2))
sketch3.addConstraint(Sketcher.Constraint("Equal", 1, 3))
sketch3.addConstraint(Sketcher.Constraint("Equal", 2, 4))
sketch3.addConstraint(Sketcher.Constraint("Equal", 3, 5))
sketch3.addConstraint(Sketcher.Constraint("Equal", 4, 6))
sketch3.addConstraint(Sketcher.Constraint("Equal", 5, 7))
sketch3.addConstraint(Sketcher.Constraint("Equal", 6, 8))
sketch3.addConstraint(Sketcher.Constraint("Equal", 7, 9))
sketch3.addConstraint(Sketcher.Constraint("Equal", 8, 10))
sketch3.addConstraint(Sketcher.Constraint("Equal", 10, 11))
sketch3.addConstraint(Sketcher.Constraint("Equal", 9, 12))
sketch3.addConstraint(Sketcher.Constraint("Equal", 11, 13))
sketch3.addConstraint(Sketcher.Constraint("Equal", 12, 14))
sketch3.addConstraint(Sketcher.Constraint("Equal", 13, 15))
sketch3.addConstraint(Sketcher.Constraint("Equal", 14, 16))
sketch3.addConstraint(Sketcher.Constraint("Equal", 15, 17))
sketch3.addConstraint(Sketcher.Constraint("Equal", 16, 18))
sketch3.addConstraint(Sketcher.Constraint("Equal", 17, 19))
sketch3.addConstraint(Sketcher.Constraint("Equal", 18, 20))
sketch3.addConstraint(Sketcher.Constraint("Equal", 19, 21))
sketch3.addConstraint(Sketcher.Constraint("Equal", 20, 22))
sketch3.addConstraint(Sketcher.Constraint("Equal", 21, 23))
sketch3.addConstraint(Sketcher.Constraint("Equal", 22, 24))
sketch3.addConstraint(Sketcher.Constraint("Equal", 23, 25))
sketch3.addConstraint(Sketcher.Constraint("Equal", 24, 26))
sketch3.addConstraint(Sketcher.Constraint("Equal", 25, 27))
sketch3.addConstraint(Sketcher.Constraint("Equal", 26, 28))
sketch3.addConstraint(Sketcher.Constraint("Equal", 27, 29))
sketch3.addConstraint(Sketcher.Constraint("Equal", 28, 30))
sketch3.addConstraint(Sketcher.Constraint("Equal", 29, 31))
sketch3.addConstraint(Sketcher.Constraint("Equal", 30, 32))
sketch3.addConstraint(Sketcher.Constraint("Equal", 31, 33))
sketch3.addConstraint(Sketcher.Constraint("Equal", 32, 34))
sketch3.addConstraint(Sketcher.Constraint("Equal", 33, 35))
sketch3.addConstraint(Sketcher.Constraint("Equal", 34, 36))
sketch3.addConstraint(Sketcher.Constraint("Equal", 35, 37))
sketch3.addConstraint(Sketcher.Constraint("Equal", 36, 38))
sketch3.addConstraint(Sketcher.Constraint("Equal", 37, 39))
sketch3.addConstraint(Sketcher.Constraint("Equal", 38, 40))
sketch3.addConstraint(Sketcher.Constraint("Equal", 39, 41))
sketch3.addConstraint(Sketcher.Constraint("Equal", 40, 42))
sketch3.addConstraint(Sketcher.Constraint("Equal", 41, 43))
sketch3.addConstraint(Sketcher.Constraint("Equal", 42, 44))
sketch3.addConstraint(Sketcher.Constraint("Equal", 43, 45))
sketch3.addConstraint(Sketcher.Constraint("Equal", 44, 46))
sketch3.addConstraint(Sketcher.Constraint("Symmetric", 37, 3, 39, 3, -1, 1))
sketch3.addConstraint(Sketcher.Constraint("Symmetric", 35, 3, 41, 3, -1, 1))
sketch3.addConstraint(Sketcher.Constraint("Symmetric", 33, 3, 43, 3, -1, 1))
sketch3.addConstraint(Sketcher.Constraint("Symmetric", 31, 3, 45, 3, -1, 1))
sketch3.addConstraint(Sketcher.Constraint("PointOnObject", 0, 3, -2))
sketch3.addConstraint(Sketcher.Constraint("PointOnObject", 2, 3, -2))
sketch3.addConstraint(Sketcher.Constraint("PointOnObject", 4, 3, -2))
sketch3.addConstraint(Sketcher.Constraint("PointOnObject", 6, 3, -2))
sketch3.addConstraint(Sketcher.Constraint("PointOnObject", 8, 3, -2))
sketch3.addConstraint(Sketcher.Constraint("PointOnObject", 10, 3, -2))
sketch3.addConstraint(Sketcher.Constraint("PointOnObject", 11, 3, -2))
sketch3.addConstraint(Sketcher.Constraint("PointOnObject", 13, 3, -2))
sketch3.addConstraint(Sketcher.Constraint("PointOnObject", 15, 3, -2))
sketch3.addConstraint(Sketcher.Constraint("PointOnObject", 17, 3, -2))
sketch3.addConstraint(Sketcher.Constraint("PointOnObject", 19, 3, -2))
sketch3.addConstraint(Sketcher.Constraint("PointOnObject", 21, 3, -2))
sketch3.addConstraint(Sketcher.Constraint("PointOnObject", 23, 3, -2))
sketch3.addConstraint(Sketcher.Constraint("PointOnObject", 25, 3, -2))
sketch3.addConstraint(Sketcher.Constraint("PointOnObject", 27, 3, -2))
sketch3.addConstraint(Sketcher.Constraint("PointOnObject", 29, 3, -2))
sketch3.addConstraint(Sketcher.Constraint("PointOnObject", 31, 3, -2))
sketch3.addConstraint(Sketcher.Constraint("PointOnObject", 33, 3, -2))
sketch3.addConstraint(Sketcher.Constraint("PointOnObject", 35, 3, -2))
sketch3.addConstraint(Sketcher.Constraint("PointOnObject", 37, 3, -2))
sketch3.addConstraint(Sketcher.Constraint("Diameter", 1, Q("6 mm")))
sketch3.addConstraint(Sketcher.Constraint("Diameter", 0, Q("9.5 mm")))
sketch3.addConstraint(Sketcher.Constraint("DistanceY", 0, 3, -1, 1, Q("1230 mm")))
sketch3.addConstraint(Sketcher.Constraint("DistanceY", 2, 3, -1, 1, Q("1170 mm")))
sketch3.addConstraint(Sketcher.Constraint("DistanceY", 4, 3, -1, 1, Q("1110 mm")))
sketch3.addConstraint(Sketcher.Constraint("DistanceY", 6, 3, -1, 1, Q("1050 mm")))
sketch3.addConstraint(Sketcher.Constraint("DistanceY", 8, 3, -1, 1, Q("990 mm")))
sketch3.addConstraint(Sketcher.Constraint("DistanceY", 10, 3, -1, 1, Q("930 mm")))
sketch3.addConstraint(Sketcher.Constraint("DistanceY", 11, 3, -1, 1, Q("870 mm")))
sketch3.addConstraint(Sketcher.Constraint("DistanceY", 13, 3, -1, 1, Q("810 mm")))
sketch3.addConstraint(Sketcher.Constraint("DistanceY", 15, 3, -1, 1, Q("750 mm")))
sketch3.addConstraint(Sketcher.Constraint("DistanceY", 17, 3, -1, 1, Q("690 mm")))
sketch3.addConstraint(Sketcher.Constraint("DistanceY", 19, 3, -1, 1, Q("630 mm")))
sketch3.addConstraint(Sketcher.Constraint("DistanceY", 21, 3, -1, 1, Q("510 mm")))
sketch3.addConstraint(Sketcher.Constraint("DistanceY", 23, 3, -1, 1, Q("450 mm")))
sketch3.addConstraint(Sketcher.Constraint("DistanceY", 25, 3, -1, 1, Q("390 mm")))
sketch3.addConstraint(Sketcher.Constraint("DistanceY", 27, 3, -1, 1, Q("330 mm")))
sketch3.addConstraint(Sketcher.Constraint("DistanceY", 29, 3, -1, 1, Q("270 mm")))
sketch3.addConstraint(Sketcher.Constraint("DistanceY", 31, 3, -1, 1, Q("210 mm")))
sketch3.addConstraint(Sketcher.Constraint("DistanceY", 33, 3, -1, 1, Q("150 mm")))
sketch3.addConstraint(Sketcher.Constraint("DistanceY", 35, 3, -1, 1, Q("90 mm")))
sketch3.addConstraint(Sketcher.Constraint("DistanceY", 37, 3, -1, 1, Q("30 mm")))
pocket2 = doc.addObject("PartDesign::Pocket", "Pocket001")
body.addObject(pocket2)
pocket2.Profile = sketch3
pocket2.Length = 8.4
pocket2.Reversed = True

doc.recompute()
